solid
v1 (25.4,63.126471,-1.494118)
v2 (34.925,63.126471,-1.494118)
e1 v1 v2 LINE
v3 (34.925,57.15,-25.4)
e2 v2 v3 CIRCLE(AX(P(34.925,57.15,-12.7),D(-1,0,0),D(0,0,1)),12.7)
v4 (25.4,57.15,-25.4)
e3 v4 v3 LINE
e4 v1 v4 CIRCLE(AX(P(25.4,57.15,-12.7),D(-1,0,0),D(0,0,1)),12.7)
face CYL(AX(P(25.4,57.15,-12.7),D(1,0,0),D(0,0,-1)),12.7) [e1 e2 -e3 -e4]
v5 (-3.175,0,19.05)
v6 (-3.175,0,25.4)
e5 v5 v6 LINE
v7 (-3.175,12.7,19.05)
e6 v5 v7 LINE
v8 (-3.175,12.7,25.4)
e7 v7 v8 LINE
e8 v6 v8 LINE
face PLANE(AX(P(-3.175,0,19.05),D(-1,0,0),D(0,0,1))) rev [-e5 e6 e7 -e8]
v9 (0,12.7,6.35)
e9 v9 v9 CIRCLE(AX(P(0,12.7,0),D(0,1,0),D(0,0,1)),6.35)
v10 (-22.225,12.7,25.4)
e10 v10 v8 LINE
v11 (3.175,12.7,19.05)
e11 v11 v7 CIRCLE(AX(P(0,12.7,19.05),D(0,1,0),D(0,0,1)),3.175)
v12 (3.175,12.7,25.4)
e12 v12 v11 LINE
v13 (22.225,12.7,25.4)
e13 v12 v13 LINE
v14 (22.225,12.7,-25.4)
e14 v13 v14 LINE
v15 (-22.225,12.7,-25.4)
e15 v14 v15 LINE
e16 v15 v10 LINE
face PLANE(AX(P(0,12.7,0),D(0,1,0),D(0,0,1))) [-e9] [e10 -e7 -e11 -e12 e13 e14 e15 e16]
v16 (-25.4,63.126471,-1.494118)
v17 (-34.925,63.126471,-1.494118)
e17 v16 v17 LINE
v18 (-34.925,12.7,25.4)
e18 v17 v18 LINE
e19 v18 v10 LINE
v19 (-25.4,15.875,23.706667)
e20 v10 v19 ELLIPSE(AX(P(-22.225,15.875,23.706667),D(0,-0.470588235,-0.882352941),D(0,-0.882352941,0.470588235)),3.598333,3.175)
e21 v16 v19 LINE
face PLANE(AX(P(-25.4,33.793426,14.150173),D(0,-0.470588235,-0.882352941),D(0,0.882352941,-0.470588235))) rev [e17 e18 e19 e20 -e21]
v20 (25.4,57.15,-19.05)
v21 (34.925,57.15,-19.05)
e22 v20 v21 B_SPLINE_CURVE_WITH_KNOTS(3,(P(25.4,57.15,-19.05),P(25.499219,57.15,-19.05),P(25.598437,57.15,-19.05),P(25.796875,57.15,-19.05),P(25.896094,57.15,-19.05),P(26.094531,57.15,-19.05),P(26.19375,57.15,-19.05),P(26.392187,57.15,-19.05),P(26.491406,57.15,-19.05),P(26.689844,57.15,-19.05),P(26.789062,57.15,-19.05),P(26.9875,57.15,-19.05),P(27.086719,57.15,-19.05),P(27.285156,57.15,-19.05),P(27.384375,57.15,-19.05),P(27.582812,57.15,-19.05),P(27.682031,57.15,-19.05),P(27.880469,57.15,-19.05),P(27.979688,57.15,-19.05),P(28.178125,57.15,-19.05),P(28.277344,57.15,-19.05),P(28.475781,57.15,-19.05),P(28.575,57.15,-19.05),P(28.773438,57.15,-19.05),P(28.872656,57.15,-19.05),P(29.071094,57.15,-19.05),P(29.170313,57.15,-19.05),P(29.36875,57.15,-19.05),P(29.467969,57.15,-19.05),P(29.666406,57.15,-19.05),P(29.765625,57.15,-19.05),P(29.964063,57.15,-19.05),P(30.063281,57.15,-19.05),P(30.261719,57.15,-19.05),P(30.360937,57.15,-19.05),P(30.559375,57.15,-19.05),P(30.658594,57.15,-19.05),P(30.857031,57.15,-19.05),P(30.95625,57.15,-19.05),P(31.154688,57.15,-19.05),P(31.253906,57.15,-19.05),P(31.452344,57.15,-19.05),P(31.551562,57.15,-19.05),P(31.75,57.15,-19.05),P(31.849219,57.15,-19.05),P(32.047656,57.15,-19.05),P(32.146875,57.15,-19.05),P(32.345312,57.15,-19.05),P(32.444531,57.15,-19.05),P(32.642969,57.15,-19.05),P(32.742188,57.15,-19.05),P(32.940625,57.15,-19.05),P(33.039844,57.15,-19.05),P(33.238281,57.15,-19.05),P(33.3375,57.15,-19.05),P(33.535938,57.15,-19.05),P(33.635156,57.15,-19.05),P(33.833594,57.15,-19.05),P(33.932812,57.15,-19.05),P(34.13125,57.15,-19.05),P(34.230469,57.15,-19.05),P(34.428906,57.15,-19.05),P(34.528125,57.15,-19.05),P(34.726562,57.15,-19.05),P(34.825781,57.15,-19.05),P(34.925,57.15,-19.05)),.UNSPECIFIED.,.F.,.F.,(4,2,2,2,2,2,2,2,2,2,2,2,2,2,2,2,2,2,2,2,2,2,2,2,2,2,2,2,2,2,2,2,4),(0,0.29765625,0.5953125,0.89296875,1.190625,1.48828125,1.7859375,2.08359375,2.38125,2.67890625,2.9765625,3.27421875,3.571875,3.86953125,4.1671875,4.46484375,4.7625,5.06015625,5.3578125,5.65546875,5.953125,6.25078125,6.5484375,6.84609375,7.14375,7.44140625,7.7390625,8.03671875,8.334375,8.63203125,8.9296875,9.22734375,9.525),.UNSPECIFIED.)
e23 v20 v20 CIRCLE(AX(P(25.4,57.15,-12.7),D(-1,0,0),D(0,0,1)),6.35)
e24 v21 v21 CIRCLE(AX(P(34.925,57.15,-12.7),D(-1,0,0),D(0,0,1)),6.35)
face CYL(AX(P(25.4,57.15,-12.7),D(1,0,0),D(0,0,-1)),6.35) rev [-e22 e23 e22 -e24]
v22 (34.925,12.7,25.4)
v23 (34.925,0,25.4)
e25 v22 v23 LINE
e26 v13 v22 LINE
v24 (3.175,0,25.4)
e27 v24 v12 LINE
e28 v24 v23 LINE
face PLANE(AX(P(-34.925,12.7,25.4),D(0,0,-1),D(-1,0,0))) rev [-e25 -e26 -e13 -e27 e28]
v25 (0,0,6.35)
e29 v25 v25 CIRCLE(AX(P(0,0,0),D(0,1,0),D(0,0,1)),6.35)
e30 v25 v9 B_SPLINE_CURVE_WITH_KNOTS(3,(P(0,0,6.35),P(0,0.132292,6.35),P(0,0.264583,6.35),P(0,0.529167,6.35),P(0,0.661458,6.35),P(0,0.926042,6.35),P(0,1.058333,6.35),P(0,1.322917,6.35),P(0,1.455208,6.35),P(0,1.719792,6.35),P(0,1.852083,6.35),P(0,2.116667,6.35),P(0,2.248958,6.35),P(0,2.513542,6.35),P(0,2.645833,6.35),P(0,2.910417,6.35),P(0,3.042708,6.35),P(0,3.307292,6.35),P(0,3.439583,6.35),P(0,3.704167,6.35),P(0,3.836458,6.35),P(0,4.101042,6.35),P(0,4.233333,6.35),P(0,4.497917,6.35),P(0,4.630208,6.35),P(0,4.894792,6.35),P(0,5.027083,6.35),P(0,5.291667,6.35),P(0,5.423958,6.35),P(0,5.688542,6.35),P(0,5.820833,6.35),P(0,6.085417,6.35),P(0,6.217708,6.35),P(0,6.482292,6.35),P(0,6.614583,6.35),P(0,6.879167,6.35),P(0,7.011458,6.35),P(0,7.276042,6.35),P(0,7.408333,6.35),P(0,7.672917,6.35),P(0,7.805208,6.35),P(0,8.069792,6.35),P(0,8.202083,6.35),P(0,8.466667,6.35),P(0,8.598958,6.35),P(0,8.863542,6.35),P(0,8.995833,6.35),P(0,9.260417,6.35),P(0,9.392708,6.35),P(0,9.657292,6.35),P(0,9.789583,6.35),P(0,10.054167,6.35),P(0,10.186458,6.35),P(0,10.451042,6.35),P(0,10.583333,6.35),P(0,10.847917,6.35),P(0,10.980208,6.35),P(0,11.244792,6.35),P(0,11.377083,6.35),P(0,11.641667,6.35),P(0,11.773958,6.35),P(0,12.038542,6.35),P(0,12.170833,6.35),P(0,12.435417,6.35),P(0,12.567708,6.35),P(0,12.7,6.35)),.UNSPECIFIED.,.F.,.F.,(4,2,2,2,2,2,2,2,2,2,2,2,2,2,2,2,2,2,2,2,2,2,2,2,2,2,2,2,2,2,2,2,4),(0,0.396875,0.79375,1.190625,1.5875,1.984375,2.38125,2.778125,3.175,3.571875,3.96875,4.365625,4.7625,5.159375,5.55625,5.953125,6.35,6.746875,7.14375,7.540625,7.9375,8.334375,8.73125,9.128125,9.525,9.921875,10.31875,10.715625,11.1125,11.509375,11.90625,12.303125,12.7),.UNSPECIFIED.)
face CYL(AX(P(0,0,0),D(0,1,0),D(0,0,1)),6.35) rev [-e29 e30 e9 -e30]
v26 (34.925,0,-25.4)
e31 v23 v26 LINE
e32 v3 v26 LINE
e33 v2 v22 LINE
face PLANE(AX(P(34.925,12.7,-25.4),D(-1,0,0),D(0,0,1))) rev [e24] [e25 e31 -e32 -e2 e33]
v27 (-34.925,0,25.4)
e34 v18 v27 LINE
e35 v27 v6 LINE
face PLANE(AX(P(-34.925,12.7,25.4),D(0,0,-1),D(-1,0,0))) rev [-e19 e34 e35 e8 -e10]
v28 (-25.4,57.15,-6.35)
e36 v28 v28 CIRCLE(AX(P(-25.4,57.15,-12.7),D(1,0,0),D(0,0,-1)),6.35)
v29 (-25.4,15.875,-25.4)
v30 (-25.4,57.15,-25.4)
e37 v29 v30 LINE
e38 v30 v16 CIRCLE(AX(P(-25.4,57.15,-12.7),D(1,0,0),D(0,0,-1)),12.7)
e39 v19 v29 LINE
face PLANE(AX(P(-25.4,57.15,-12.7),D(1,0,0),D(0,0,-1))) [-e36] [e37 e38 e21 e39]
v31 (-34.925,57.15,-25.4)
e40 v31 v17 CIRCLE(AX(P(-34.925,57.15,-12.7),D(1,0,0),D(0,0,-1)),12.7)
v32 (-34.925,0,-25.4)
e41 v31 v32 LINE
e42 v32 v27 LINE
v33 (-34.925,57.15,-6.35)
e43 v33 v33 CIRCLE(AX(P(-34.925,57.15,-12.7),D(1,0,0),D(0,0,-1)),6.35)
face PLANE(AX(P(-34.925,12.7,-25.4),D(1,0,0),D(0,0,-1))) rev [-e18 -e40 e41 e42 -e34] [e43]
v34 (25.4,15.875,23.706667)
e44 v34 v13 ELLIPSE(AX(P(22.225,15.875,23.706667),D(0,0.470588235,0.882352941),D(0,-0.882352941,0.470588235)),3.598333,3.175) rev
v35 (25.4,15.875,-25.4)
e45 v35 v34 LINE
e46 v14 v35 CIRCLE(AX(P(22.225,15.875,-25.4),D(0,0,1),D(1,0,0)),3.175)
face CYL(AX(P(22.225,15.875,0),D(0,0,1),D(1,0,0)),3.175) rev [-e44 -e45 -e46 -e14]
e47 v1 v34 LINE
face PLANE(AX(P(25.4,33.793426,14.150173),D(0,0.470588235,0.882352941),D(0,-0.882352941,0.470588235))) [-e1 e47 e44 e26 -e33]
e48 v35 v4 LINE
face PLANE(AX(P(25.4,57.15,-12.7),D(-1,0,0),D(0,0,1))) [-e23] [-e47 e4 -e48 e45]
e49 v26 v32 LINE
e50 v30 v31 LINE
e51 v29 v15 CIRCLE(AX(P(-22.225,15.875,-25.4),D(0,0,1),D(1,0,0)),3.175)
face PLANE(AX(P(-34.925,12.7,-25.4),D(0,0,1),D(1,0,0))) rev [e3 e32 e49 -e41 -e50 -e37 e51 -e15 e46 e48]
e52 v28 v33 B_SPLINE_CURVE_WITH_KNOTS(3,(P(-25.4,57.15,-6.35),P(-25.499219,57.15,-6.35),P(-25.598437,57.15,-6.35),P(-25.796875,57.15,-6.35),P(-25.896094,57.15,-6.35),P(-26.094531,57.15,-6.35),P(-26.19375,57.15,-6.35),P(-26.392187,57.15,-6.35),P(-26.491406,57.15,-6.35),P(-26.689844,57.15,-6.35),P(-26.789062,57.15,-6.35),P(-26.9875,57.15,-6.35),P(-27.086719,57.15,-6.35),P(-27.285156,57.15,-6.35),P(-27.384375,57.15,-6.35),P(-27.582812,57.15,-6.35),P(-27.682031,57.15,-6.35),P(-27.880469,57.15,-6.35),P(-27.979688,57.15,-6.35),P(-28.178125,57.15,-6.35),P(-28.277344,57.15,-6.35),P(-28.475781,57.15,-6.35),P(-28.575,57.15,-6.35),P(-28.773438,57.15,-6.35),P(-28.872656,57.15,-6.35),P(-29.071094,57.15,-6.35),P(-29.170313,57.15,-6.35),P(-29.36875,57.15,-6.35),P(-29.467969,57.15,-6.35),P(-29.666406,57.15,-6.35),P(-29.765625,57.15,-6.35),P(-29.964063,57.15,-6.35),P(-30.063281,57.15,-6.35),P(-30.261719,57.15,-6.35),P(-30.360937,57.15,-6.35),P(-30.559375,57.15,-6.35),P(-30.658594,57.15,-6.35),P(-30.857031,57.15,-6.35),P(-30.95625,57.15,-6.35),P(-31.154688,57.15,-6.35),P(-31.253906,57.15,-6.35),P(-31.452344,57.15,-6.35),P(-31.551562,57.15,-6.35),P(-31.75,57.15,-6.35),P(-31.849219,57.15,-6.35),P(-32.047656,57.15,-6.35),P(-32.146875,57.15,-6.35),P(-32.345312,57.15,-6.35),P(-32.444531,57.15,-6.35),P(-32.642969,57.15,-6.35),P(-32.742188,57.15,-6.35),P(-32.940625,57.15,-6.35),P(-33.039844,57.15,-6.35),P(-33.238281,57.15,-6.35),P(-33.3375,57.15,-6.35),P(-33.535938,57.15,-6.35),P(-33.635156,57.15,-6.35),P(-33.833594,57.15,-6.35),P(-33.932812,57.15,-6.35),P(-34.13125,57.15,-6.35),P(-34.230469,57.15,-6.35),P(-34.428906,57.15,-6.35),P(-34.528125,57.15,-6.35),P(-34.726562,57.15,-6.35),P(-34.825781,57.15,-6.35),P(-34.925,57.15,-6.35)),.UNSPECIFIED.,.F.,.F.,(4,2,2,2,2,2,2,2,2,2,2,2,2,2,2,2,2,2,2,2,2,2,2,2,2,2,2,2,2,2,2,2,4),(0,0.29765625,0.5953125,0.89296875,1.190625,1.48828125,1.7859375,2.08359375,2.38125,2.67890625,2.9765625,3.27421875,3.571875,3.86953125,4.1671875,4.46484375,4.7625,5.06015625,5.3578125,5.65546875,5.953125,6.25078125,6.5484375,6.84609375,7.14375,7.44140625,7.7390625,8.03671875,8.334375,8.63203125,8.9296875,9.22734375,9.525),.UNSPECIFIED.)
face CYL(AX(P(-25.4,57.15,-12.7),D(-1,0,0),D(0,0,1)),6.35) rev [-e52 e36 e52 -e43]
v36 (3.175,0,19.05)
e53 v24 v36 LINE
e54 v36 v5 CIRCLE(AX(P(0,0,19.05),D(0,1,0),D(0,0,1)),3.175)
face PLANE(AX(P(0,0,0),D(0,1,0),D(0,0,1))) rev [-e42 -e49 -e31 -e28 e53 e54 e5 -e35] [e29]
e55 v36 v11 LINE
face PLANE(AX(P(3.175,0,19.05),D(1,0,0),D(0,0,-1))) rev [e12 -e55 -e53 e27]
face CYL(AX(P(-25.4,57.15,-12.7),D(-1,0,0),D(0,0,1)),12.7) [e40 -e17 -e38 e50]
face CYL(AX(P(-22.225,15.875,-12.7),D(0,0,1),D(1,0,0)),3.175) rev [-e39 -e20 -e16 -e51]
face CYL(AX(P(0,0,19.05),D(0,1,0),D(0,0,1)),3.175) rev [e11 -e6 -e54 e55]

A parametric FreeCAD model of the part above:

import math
import FreeCAD as App
import Part
import Sketcher
from FreeCAD import Vector
Q = App.Units.Quantity


def edges_at(feature, points):
    """Names of the edges that pass closest to the given points."""
    edges = feature.Shape.Edges
    near = lambda p: min(range(len(edges)), key=lambda i: edges[i].distToShape(Part.Vertex(*p))[0])
    return sorted({f"Edge{near(p) + 1}" for p in points})

doc = App.newDocument("Part")
params = doc.addObject("Spreadsheet::Sheet", "Params")
for row, (alias, value) in enumerate([
    ("sketch1_height", "2 in"),
    ("sketch1_width", "2.75 in"),
    ("pad1_length", "0.5 in"),
    ("sketch2_diameter", "0.5 in"),
    ("sketch2_radius", "0.5 in"),
    ("sketch2_height", "2 in"),
    ("sketch2_width", "1.75 in"),
    ("pad2_length", "0.375 in"),
    ("sketch3_diameter", "0.5 in"),
    ("sketch3_radius", "0.5 in"),
    ("sketch3_height", "2 in"),
    ("sketch3_width", "1.75 in"),
    ("pad3_length", "0.375 in"),
    ("sketch4_diameter", "0.5 in"),
    ("sketch4_radius", "0.125 in"),
    ("fillet_radius", "0.125 in"),
], start=1):
    params.set(f"A{row}", alias)
    params.set(f"B{row}", "=" + value)
    params.setAlias(f"B{row}", alias)

body = doc.addObject("PartDesign::Body", "Body")

# Sketch on XZ plane
sketch1 = body.newObject("Sketcher::SketchObject", "Sketch")
sketch1.AttachmentSupport = (doc.getObject("XZ_Plane"), [""])
sketch1.MapMode = "FlatFace"
sketch1.addGeometry(Part.LineSegment(Vector(-35, -25, 0), Vector(-35, 25, 0)), False)
sketch1.addGeometry(Part.LineSegment(Vector(-35, 25, 0), Vector(35, 25, 0)), False)
sketch1.addGeometry(Part.LineSegment(Vector(35, 25, 0), Vector(35, -25, 0)), False)
sketch1.addGeometry(Part.LineSegment(Vector(35, -25, 0), Vector(-35, -25, 0)), False)
sketch1.addConstraint(Sketcher.Constraint("Coincident", 0, 2, 1, 1))
sketch1.addConstraint(Sketcher.Constraint("Coincident", 1, 2, 2, 1))
sketch1.addConstraint(Sketcher.Constraint("Coincident", 2, 2, 3, 1))
sketch1.addConstraint(Sketcher.Constraint("Coincident", 3, 2, 0, 1))
sketch1.addConstraint(Sketcher.Constraint("Vertical", 0))
sketch1.addConstraint(Sketcher.Constraint("Horizontal", 1))
sketch1.addConstraint(Sketcher.Constraint("Vertical", 2))
sketch1.addConstraint(Sketcher.Constraint("Horizontal", 3))
sketch1.addConstraint(Sketcher.Constraint("Symmetric", 0, 2, 2, 2, -1, 1))
sketch1.addConstraint(Sketcher.Constraint("DistanceY", 0, 1, 0, 2, Q("2 in")))
sketch1.addConstraint(Sketcher.Constraint("DistanceX", 1, 1, 1, 2, Q("2.75 in")))
sketch1.setExpression("Constraints[9]", "Params.sketch1_height")
sketch1.setExpression("Constraints[10]", "Params.sketch1_width")
pad1 = body.newObject("PartDesign::Pad", "Pad")
pad1.Profile = sketch1
pad1.setExpression("Length", "Params.pad1_length")
pad1.Reversed = True

# Sketch on YZ plane
sketch2 = body.newObject("Sketcher::SketchObject", "Sketch001")
sketch2.AttachmentSupport = (doc.getObject("YZ_Plane"), [""])
sketch2.MapMode = "FlatFace"
sketch2.AttachmentOffset = App.Placement(Vector(0, 0, 1.375 * 25.4), App.Rotation())
sketch2.addGeometry(Part.LineSegment(Vector(63, -1, 0), Vector(13, 25, 0)), False)
sketch2.addGeometry(Part.LineSegment(Vector(13, 25, 0), Vector(13, -25, 0)), False)
sketch2.addGeometry(Part.LineSegment(Vector(13, -25, 0), Vector(57, -25, 0)), False)
sketch2.addGeometry(Part.ArcOfCircle(Part.Circle(Vector(57, -13, 0), Vector(0, 0, 1), 13), math.radians(-90), math.radians(62)), False)
sketch2.addGeometry(Part.Circle(Vector(57, -13, 0), Vector(0, 0, 1), 6), False)
sketch2.addConstraint(Sketcher.Constraint("Coincident", 0, 2, 1, 1))
sketch2.addConstraint(Sketcher.Constraint("Coincident", 1, 2, 2, 1))
sketch2.addConstraint(Sketcher.Constraint("Tangent", 2, 2, 3, 1))
sketch2.addConstraint(Sketcher.Constraint("Tangent", 3, 2, 0, 1))
sketch2.addConstraint(Sketcher.Constraint("Vertical", 1))
sketch2.addConstraint(Sketcher.Constraint("Horizontal", 2))
sketch2.addConstraint(Sketcher.Constraint("Coincident", 4, 3, 3, 3))
sketch2.addConstraint(Sketcher.Constraint("Diameter", 4, Q("0.5 in")))
sketch2.addConstraint(Sketcher.Constraint("Radius", 3, Q("0.5 in")))
sketch2.addConstraint(Sketcher.Constraint("DistanceY", 1, 2, 1, 1, Q("2 in")))
sketch2.addConstraint(Sketcher.Constraint("DistanceY", -1, 1, 0, 2, Q("1 in")))
sketch2.addConstraint(Sketcher.Constraint("DistanceX", 2, 1, 2, 2, Q("1.75 in")))
sketch2.addConstraint(Sketcher.Constraint("DistanceX", -1, 1, 0, 2, Q("0.5 in")))
sketch2.setExpression("Constraints[7]", "Params.sketch2_diameter")
sketch2.setExpression("Constraints[8]", "Params.sketch2_radius")
sketch2.setExpression("Constraints[9]", "Params.sketch2_height")
sketch2.setExpression("Constraints[11]", "Params.sketch2_width")
pad2 = body.newObject("PartDesign::Pad", "Pad001")
pad2.Profile = sketch2
pad2.setExpression("Length", "Params.pad2_length")
pad2.Reversed = True

# Sketch on YZ plane
sketch3 = body.newObject("Sketcher::SketchObject", "Sketch002")
sketch3.AttachmentSupport = (doc.getObject("YZ_Plane"), [""])
sketch3.MapMode = "FlatFace"
sketch3.AttachmentOffset = App.Placement(Vector(0, 0, -1 * 25.4), App.Rotation())
sketch3.addGeometry(Part.LineSegment(Vector(63, -1, 0), Vector(13, 25, 0)), False)
sketch3.addGeometry(Part.LineSegment(Vector(13, 25, 0), Vector(13, -25, 0)), False)
sketch3.addGeometry(Part.LineSegment(Vector(13, -25, 0), Vector(57, -25, 0)), False)
sketch3.addGeometry(Part.ArcOfCircle(Part.Circle(Vector(57, -13, 0), Vector(0, 0, 1), 13), math.radians(-90), math.radians(62)), False)
sketch3.addGeometry(Part.Circle(Vector(57, -13, 0), Vector(0, 0, 1), 6), False)
sketch3.addConstraint(Sketcher.Constraint("Coincident", 0, 2, 1, 1))
sketch3.addConstraint(Sketcher.Constraint("Coincident", 1, 2, 2, 1))
sketch3.addConstraint(Sketcher.Constraint("Tangent", 2, 2, 3, 1))
sketch3.addConstraint(Sketcher.Constraint("Tangent", 3, 2, 0, 1))
sketch3.addConstraint(Sketcher.Constraint("Vertical", 1))
sketch3.addConstraint(Sketcher.Constraint("Horizontal", 2))
sketch3.addConstraint(Sketcher.Constraint("Coincident", 4, 3, 3, 3))
sketch3.addConstraint(Sketcher.Constraint("Diameter", 4, Q("0.5 in")))
sketch3.addConstraint(Sketcher.Constraint("Radius", 3, Q("0.5 in")))
sketch3.addConstraint(Sketcher.Constraint("DistanceY", 1, 2, 1, 1, Q("2 in")))
sketch3.addConstraint(Sketcher.Constraint("DistanceY", -1, 1, 0, 2, Q("1 in")))
sketch3.addConstraint(Sketcher.Constraint("DistanceX", 2, 1, 2, 2, Q("1.75 in")))
sketch3.addConstraint(Sketcher.Constraint("DistanceX", -1, 1, 0, 2, Q("0.5 in")))
sketch3.setExpression("Constraints[7]", "Params.sketch3_diameter")
sketch3.setExpression("Constraints[8]", "Params.sketch3_radius")
sketch3.setExpression("Constraints[9]", "Params.sketch3_height")
sketch3.setExpression("Constraints[11]", "Params.sketch3_width")
pad3 = body.newObject("PartDesign::Pad", "Pad002")
pad3.Profile = sketch3
pad3.setExpression("Length", "Params.pad3_length")
pad3.Reversed = True

# Sketch on XZ plane
sketch4 = body.newObject("Sketcher::SketchObject", "Sketch003")
sketch4.AttachmentSupport = (doc.getObject("XZ_Plane"), [""])
sketch4.MapMode = "FlatFace"
sketch4.AttachmentOffset = App.Placement(Vector(0, 0, -0.5 * 25.4), App.Rotation())
sketch4.addGeometry(Part.Circle(Vector(0, 0, 0), Vector(0, 0, 1), 6.3), False)
sketch4.addGeometry(Part.LineSegment(Vector(3.2, 25.4, 0), Vector(3.2, 19.1, 0)), False)
sketch4.addGeometry(Part.ArcOfCircle(Part.Circle(Vector(0, 19.1, 0), Vector(0, 0, 1), 3.2), math.radians(180), math.radians(360)), False)
sketch4.addGeometry(Part.LineSegment(Vector(-3.2, 19.1, 0), Vector(-3.2, 25.4, 0)), False)
sketch4.addGeometry(Part.LineSegment(Vector(-3.2, 25.4, 0), Vector(3.2, 25.4, 0)), False)
sketch4.addConstraint(Sketcher.Constraint("Tangent", 1, 2, 2, 2))
sketch4.addConstraint(Sketcher.Constraint("Tangent", 2, 1, 3, 1))
sketch4.addConstraint(Sketcher.Constraint("Coincident", 3, 2, 4, 1))
sketch4.addConstraint(Sketcher.Constraint("Coincident", 4, 2, 1, 1))
sketch4.addConstraint(Sketcher.Constraint("Vertical", 1))
sketch4.addConstraint(Sketcher.Constraint("Vertical", 3))
sketch4.addConstraint(Sketcher.Constraint("Horizontal", 4))
sketch4.addConstraint(Sketcher.Constraint("Coincident", 0, 3, -1, 1))
sketch4.addConstraint(Sketcher.Constraint("PointOnObject", 2, 3, -2))
sketch4.addConstraint(Sketcher.Constraint("Equal", 4, 1))
sketch4.addConstraint(Sketcher.Constraint("Diameter", 0, Q("0.5 in")))
sketch4.addConstraint(Sketcher.Constraint("DistanceY", -1, 1, 3, 2, Q("1 in")))
sketch4.addConstraint(Sketcher.Constraint("Radius", 2, Q("0.125 in")))
sketch4.setExpression("Constraints[10]", "Params.sketch4_diameter")
sketch4.setExpression("Constraints[12]", "Params.sketch4_radius")
pocket1 = body.newObject("PartDesign::Pocket", "Pocket")
pocket1.Profile = sketch4
pocket1.Type = "ThroughAll"
pocket1.Reversed = True
doc.recompute()

fillet = body.newObject("PartDesign::Fillet", "Fillet")
fillet.Base = (pocket1, edges_at(pocket1, [(25.4, 12.7, 0), (-25.4, 12.7, 0)]))
fillet.setExpression("Radius", "Params.fillet_radius")

doc.recompute()
